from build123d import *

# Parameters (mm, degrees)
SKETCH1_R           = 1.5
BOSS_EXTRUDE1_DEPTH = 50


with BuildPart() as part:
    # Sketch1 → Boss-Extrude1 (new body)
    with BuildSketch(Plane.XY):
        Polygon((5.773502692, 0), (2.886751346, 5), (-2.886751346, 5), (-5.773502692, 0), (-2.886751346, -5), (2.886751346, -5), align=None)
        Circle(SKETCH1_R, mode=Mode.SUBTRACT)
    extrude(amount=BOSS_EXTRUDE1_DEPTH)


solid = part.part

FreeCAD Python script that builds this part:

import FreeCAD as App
import Part
import Sketcher
from FreeCAD import Vector
Q = App.Units.Quantity

doc = App.newDocument("Part")
body = doc.addObject("PartDesign::Body", "Body")

# Sketch on XY plane
sketch1 = body.newObject("Sketcher::SketchObject", "Sketch")
sketch1.AttachmentSupport = (doc.getObject("XY_Plane"), [""])
sketch1.MapMode = "FlatFace"
sketch1.addGeometry(Part.LineSegment(Vector(5.773503, 0, 0), Vector(2.886751, 5, 0)), False)
sketch1.addGeometry(Part.LineSegment(Vector(2.886751, 5, 0), Vector(-2.886751, 5, 0)), False)
sketch1.addGeometry(Part.LineSegment(Vector(-2.886751, 5, 0), Vector(-5.773503, 0, 0)), False)
sketch1.addGeometry(Part.LineSegment(Vector(-5.773503, 0, 0), Vector(-2.886751, -5, 0)), False)
sketch1.addGeometry(Part.LineSegment(Vector(-2.886751, -5, 0), Vector(2.886751, -5, 0)), False)
sketch1.addGeometry(Part.LineSegment(Vector(2.886751, -5, 0), Vector(5.773503, 0, 0)), False)
sketch1.addGeometry(Part.Circle(Vector(0, 0, 0), Vector(0, 0, 1), 1.5), False)
sketch1.addConstraint(Sketcher.Constraint("Coincident", 0, 2, 1, 1))
sketch1.addConstraint(Sketcher.Constraint("Coincident", 1, 2, 2, 1))
sketch1.addConstraint(Sketcher.Constraint("Coincident", 2, 2, 3, 1))
sketch1.addConstraint(Sketcher.Constraint("Coincident", 3, 2, 4, 1))
sketch1.addConstraint(Sketcher.Constraint("Coincident", 4, 2, 5, 1))
sketch1.addConstraint(Sketcher.Constraint("Coincident", 5, 2, 0, 1))
sketch1.addConstraint(Sketcher.Constraint("Horizontal", 1))
sketch1.addConstraint(Sketcher.Constraint("Horizontal", 4))
sketch1.addConstraint(Sketcher.Constraint("Coincident", 6, 3, -1, 1))
sketch1.addConstraint(Sketcher.Constraint("Symmetric", 0, 2, 3, 2, -1, 1))
sketch1.addConstraint(Sketcher.Constraint("Symmetric", 2, 2, 5, 2, -1, 1))
sketch1.addConstraint(Sketcher.Constraint("PointOnObject", 2, 2, -1))
sketch1.addConstraint(Sketcher.Constraint("Parallel", 2, 5))
sketch1.addConstraint(Sketcher.Constraint("Vertical", 1, 2, 3, 2))
sketch1.addConstraint(Sketcher.Constraint("Diameter", 6, Q("3 mm")))
sketch1.addConstraint(Sketcher.Constraint("Angle", 0, Q("120 deg")))
sketch1.addConstraint(Sketcher.Constraint("DistanceY", -1, 1, 0, 2, Q("5 mm")))
sketch1.addConstraint(Sketcher.Constraint("DistanceX", 1, 2, 1, 1, Q("5.773503 mm")))
pad1 = body.newObject("PartDesign::Pad", "Pad")
pad1.Profile = sketch1
pad1.Length = 50

doc.recompute()
